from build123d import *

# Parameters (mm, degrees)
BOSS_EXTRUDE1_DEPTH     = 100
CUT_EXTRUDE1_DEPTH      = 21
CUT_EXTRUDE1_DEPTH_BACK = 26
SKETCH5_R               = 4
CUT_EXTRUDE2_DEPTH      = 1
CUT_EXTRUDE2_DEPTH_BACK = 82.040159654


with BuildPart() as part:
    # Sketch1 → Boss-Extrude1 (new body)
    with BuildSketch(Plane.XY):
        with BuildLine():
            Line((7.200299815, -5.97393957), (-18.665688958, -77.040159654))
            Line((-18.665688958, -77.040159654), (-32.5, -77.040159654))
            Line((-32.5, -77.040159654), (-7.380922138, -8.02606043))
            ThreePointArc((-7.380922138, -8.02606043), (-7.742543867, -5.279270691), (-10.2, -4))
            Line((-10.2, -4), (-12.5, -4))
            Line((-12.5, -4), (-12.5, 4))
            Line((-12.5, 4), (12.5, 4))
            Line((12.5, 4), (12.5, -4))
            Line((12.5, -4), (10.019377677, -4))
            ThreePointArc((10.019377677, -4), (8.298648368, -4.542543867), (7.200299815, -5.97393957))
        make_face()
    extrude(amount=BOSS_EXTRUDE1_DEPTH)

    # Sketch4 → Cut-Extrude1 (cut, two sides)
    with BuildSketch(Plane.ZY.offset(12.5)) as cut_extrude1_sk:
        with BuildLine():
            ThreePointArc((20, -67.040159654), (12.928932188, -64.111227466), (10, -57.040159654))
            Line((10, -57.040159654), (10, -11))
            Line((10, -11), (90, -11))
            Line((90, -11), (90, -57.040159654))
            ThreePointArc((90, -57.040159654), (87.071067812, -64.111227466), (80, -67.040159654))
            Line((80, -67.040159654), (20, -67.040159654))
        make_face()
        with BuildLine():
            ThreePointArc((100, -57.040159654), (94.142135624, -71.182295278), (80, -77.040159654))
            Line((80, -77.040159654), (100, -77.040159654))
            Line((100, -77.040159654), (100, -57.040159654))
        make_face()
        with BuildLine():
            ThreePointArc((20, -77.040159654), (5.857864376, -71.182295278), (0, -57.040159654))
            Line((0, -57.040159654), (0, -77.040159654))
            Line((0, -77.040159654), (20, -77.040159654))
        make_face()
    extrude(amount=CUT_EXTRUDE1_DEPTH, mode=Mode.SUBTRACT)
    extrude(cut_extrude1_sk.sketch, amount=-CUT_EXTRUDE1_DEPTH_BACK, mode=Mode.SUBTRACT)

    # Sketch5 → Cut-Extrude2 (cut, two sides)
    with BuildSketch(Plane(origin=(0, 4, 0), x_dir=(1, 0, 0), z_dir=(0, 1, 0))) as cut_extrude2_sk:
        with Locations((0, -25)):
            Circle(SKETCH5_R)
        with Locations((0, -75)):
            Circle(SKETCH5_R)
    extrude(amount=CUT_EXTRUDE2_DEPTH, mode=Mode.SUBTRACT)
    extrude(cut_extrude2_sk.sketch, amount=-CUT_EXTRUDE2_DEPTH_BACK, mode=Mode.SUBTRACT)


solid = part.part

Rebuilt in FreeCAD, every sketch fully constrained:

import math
import FreeCAD as App
import Part
import Sketcher
Q = App.Units.Quantity

doc = App.newDocument("Part")
body = doc.addObject("PartDesign::Body", "Body")

sketch1 = body.newObject("Sketcher::SketchObject", "Sketch")
sketch1.AttachmentSupport = (doc.getObject("XY_Plane"), [""])
sketch1.MapMode = "FlatFace"
sketch1.addGeometry([
    Part.LineSegment(App.Vector(-18.665689, -77.04016, 0), App.Vector(7.2003, -5.97394, 0)),
    Part.ArcOfCircle(Part.Circle(App.Vector(10.019378, -7, 0), App.Vector(0, 0, 1), 3), math.radians(90), math.radians(160)),
    Part.LineSegment(App.Vector(10.019378, -4, 0), App.Vector(12.5, -4, 0)),
    Part.LineSegment(App.Vector(12.5, -4, 0), App.Vector(12.5, 4, 0)),
    Part.LineSegment(App.Vector(12.5, 4, 0), App.Vector(-12.5, 4, 0)),
    Part.LineSegment(App.Vector(-12.5, 4, 0), App.Vector(-12.5, -4, 0)),
    Part.LineSegment(App.Vector(-12.5, -4, 0), App.Vector(-10.2, -4, 0)),
    Part.ArcOfCircle(Part.Circle(App.Vector(-10.2, -7, 0), App.Vector(0, 0, 1), 3), math.radians(-20), math.radians(90)),
    Part.LineSegment(App.Vector(-7.380922, -8.02606, 0), App.Vector(-32.5, -77.04016, 0)),
    Part.LineSegment(App.Vector(-32.5, -77.04016, 0), App.Vector(-18.665689, -77.04016, 0)),
], False)
sketch1.addConstraint([
    Sketcher.Constraint("Tangent", 0, 2, 1, 2),
    Sketcher.Constraint("Tangent", 1, 1, 2, 1),
    Sketcher.Constraint("Coincident", 2, 2, 3, 1),
    Sketcher.Constraint("Coincident", 3, 2, 4, 1),
    Sketcher.Constraint("Coincident", 4, 2, 5, 1),
    Sketcher.Constraint("Coincident", 5, 2, 6, 1),
    Sketcher.Constraint("Tangent", 6, 2, 7, 2),
    Sketcher.Constraint("Tangent", 7, 1, 8, 1),
    Sketcher.Constraint("Coincident", 8, 2, 9, 1),
    Sketcher.Constraint("Coincident", 9, 2, 0, 1),
    Sketcher.Constraint("Horizontal", 2),
    Sketcher.Constraint("Vertical", 3),
    Sketcher.Constraint("Horizontal", 4),
    Sketcher.Constraint("Vertical", 5),
    Sketcher.Constraint("Horizontal", 6),
    Sketcher.Constraint("Horizontal", 9),
    Sketcher.Constraint("Equal", 1, 7),
    Sketcher.Constraint("Symmetric", 2, 2, 4, 2, -1, 1),
    Sketcher.Constraint("Parallel", 0, 8),
    Sketcher.Constraint("Horizontal", 1, 3, 7, 3),
    Sketcher.Constraint("Radius", 1, 3.0),
    Sketcher.Constraint("DistanceX", 4, 2, 4, 1, 25.0),
    Sketcher.Constraint("DistanceY", 3, 1, 3, 2, 8.0),
    Sketcher.Constraint("Angle", 0, Q("70 deg")),
    Sketcher.Constraint("DistanceX", 6, 1, 6, 2, 2.3),
    Sketcher.Constraint("DistanceX", 8, 2, 5, 2, 20.0),
    Sketcher.Constraint("DistanceX", 9, 1, 9, 2, 13.834311),
])
pad1 = body.newObject("PartDesign::Pad", "Pad")
pad1.Profile = sketch1
pad1.Length = 100

sketch2 = body.newObject("Sketcher::SketchObject", "Sketch001")
sketch2.AttachmentSupport = (doc.getObject("YZ_Plane"), [""])
sketch2.MapMode = "FlatFace"
sketch2.AttachmentOffset = App.Placement(App.Vector(0, 0, -12.5), App.Rotation())
sketch2.addGeometry([
    Part.ArcOfCircle(Part.Circle(App.Vector(-57.04016, 20, 0), App.Vector(0, 0, 1), 10), math.radians(180), math.radians(270)),
    Part.LineSegment(App.Vector(-67.04016, 20, 0), App.Vector(-67.04016, 80, 0)),
    Part.ArcOfCircle(Part.Circle(App.Vector(-57.04016, 80, 0), App.Vector(0, 0, 1), 10), math.radians(90), math.radians(180)),
    Part.LineSegment(App.Vector(-57.04016, 90, 0), App.Vector(-11, 90, 0)),
    Part.LineSegment(App.Vector(-11, 90, 0), App.Vector(-11, 10, 0)),
    Part.LineSegment(App.Vector(-11, 10, 0), App.Vector(-57.04016, 10, 0)),
    Part.ArcOfCircle(Part.Circle(App.Vector(-57.04016, 80, 0), App.Vector(0, 0, 1), 20), math.radians(90), math.radians(180)),
    Part.LineSegment(App.Vector(-77.04016, 80, 0), App.Vector(-77.04016, 100, 0)),
    Part.LineSegment(App.Vector(-77.04016, 100, 0), App.Vector(-57.04016, 100, 0)),
    Part.ArcOfCircle(Part.Circle(App.Vector(-57.04016, 20, 0), App.Vector(0, 0, 1), 20), math.radians(180), math.radians(270)),
    Part.LineSegment(App.Vector(-57.04016, 0, 0), App.Vector(-77.04016, 0, 0)),
    Part.LineSegment(App.Vector(-77.04016, 0, 0), App.Vector(-77.04016, 20, 0)),
], False)
sketch2.addConstraint([
    Sketcher.Constraint("Tangent", 0, 1, 1, 1),
    Sketcher.Constraint("Tangent", 1, 2, 2, 2),
    Sketcher.Constraint("Tangent", 2, 1, 3, 1),
    Sketcher.Constraint("Coincident", 3, 2, 4, 1),
    Sketcher.Constraint("Coincident", 4, 2, 5, 1),
    Sketcher.Constraint("Tangent", 5, 2, 0, 2),
    Sketcher.Constraint("Tangent", 6, 2, 7, 1),
    Sketcher.Constraint("Coincident", 7, 2, 8, 1),
    Sketcher.Constraint("Tangent", 8, 2, 6, 1),
    Sketcher.Constraint("Tangent", 9, 2, 10, 1),
    Sketcher.Constraint("Coincident", 10, 2, 11, 1),
    Sketcher.Constraint("Tangent", 11, 2, 9, 1),
    Sketcher.Constraint("Vertical", 1),
    Sketcher.Constraint("Horizontal", 3),
    Sketcher.Constraint("Vertical", 4),
    Sketcher.Constraint("Horizontal", 5),
    Sketcher.Constraint("Vertical", 7),
    Sketcher.Constraint("Horizontal", 8),
    Sketcher.Constraint("Horizontal", 10),
    Sketcher.Constraint("Vertical", 11),
    Sketcher.Constraint("Coincident", 6, 3, 2, 3),
    Sketcher.Constraint("Coincident", 9, 3, 0, 3),
    Sketcher.Constraint("Equal", 0, 2),
    Sketcher.Constraint("Equal", 6, 9),
    Sketcher.Constraint("PointOnObject", 9, 2, -1),
    Sketcher.Constraint("Radius", 0, 10.0),
    Sketcher.Constraint("Radius", 6, 20.0),
    Sketcher.Constraint("DistanceY", 1, 1, 1, 2, 60.0),
    Sketcher.Constraint("DistanceX", 3, 2, -1, 1, 11.0),
    Sketcher.Constraint("DistanceX", 3, 1, 3, 2, 46.04016),
])
pocket1 = body.newObject("PartDesign::Pocket", "Pocket")
pocket1.Profile = sketch2
pocket1.Type = "ThroughAll"
pocket1.Midplane = True

sketch3 = body.newObject("Sketcher::SketchObject", "Sketch002")
sketch3.AttachmentSupport = (doc.getObject("XZ_Plane"), [""])
sketch3.MapMode = "FlatFace"
sketch3.AttachmentOffset = App.Placement(App.Vector(0, 0, -4), App.Rotation())
sketch3.addGeometry([
    Part.Circle(App.Vector(0, 25, 0), App.Vector(0, 0, 1), 4),
    Part.Circle(App.Vector(0, 75, 0), App.Vector(0, 0, 1), 4),
], False)
sketch3.addConstraint([
    Sketcher.Constraint("Equal", 0, 1),
    Sketcher.Constraint("PointOnObject", 0, 3, -2),
    Sketcher.Constraint("PointOnObject", 1, 3, -2),
    Sketcher.Constraint("Diameter", 0, 8.0),
    Sketcher.Constraint("DistanceY", -1, 1, 0, 3, 25.0),
    Sketcher.Constraint("DistanceY", -1, 1, 1, 3, 75.0),
])
pocket2 = body.newObject("PartDesign::Pocket", "Pocket001")
pocket2.Profile = sketch3
pocket2.Type = "ThroughAll"
pocket2.Midplane = True

doc.recompute()
